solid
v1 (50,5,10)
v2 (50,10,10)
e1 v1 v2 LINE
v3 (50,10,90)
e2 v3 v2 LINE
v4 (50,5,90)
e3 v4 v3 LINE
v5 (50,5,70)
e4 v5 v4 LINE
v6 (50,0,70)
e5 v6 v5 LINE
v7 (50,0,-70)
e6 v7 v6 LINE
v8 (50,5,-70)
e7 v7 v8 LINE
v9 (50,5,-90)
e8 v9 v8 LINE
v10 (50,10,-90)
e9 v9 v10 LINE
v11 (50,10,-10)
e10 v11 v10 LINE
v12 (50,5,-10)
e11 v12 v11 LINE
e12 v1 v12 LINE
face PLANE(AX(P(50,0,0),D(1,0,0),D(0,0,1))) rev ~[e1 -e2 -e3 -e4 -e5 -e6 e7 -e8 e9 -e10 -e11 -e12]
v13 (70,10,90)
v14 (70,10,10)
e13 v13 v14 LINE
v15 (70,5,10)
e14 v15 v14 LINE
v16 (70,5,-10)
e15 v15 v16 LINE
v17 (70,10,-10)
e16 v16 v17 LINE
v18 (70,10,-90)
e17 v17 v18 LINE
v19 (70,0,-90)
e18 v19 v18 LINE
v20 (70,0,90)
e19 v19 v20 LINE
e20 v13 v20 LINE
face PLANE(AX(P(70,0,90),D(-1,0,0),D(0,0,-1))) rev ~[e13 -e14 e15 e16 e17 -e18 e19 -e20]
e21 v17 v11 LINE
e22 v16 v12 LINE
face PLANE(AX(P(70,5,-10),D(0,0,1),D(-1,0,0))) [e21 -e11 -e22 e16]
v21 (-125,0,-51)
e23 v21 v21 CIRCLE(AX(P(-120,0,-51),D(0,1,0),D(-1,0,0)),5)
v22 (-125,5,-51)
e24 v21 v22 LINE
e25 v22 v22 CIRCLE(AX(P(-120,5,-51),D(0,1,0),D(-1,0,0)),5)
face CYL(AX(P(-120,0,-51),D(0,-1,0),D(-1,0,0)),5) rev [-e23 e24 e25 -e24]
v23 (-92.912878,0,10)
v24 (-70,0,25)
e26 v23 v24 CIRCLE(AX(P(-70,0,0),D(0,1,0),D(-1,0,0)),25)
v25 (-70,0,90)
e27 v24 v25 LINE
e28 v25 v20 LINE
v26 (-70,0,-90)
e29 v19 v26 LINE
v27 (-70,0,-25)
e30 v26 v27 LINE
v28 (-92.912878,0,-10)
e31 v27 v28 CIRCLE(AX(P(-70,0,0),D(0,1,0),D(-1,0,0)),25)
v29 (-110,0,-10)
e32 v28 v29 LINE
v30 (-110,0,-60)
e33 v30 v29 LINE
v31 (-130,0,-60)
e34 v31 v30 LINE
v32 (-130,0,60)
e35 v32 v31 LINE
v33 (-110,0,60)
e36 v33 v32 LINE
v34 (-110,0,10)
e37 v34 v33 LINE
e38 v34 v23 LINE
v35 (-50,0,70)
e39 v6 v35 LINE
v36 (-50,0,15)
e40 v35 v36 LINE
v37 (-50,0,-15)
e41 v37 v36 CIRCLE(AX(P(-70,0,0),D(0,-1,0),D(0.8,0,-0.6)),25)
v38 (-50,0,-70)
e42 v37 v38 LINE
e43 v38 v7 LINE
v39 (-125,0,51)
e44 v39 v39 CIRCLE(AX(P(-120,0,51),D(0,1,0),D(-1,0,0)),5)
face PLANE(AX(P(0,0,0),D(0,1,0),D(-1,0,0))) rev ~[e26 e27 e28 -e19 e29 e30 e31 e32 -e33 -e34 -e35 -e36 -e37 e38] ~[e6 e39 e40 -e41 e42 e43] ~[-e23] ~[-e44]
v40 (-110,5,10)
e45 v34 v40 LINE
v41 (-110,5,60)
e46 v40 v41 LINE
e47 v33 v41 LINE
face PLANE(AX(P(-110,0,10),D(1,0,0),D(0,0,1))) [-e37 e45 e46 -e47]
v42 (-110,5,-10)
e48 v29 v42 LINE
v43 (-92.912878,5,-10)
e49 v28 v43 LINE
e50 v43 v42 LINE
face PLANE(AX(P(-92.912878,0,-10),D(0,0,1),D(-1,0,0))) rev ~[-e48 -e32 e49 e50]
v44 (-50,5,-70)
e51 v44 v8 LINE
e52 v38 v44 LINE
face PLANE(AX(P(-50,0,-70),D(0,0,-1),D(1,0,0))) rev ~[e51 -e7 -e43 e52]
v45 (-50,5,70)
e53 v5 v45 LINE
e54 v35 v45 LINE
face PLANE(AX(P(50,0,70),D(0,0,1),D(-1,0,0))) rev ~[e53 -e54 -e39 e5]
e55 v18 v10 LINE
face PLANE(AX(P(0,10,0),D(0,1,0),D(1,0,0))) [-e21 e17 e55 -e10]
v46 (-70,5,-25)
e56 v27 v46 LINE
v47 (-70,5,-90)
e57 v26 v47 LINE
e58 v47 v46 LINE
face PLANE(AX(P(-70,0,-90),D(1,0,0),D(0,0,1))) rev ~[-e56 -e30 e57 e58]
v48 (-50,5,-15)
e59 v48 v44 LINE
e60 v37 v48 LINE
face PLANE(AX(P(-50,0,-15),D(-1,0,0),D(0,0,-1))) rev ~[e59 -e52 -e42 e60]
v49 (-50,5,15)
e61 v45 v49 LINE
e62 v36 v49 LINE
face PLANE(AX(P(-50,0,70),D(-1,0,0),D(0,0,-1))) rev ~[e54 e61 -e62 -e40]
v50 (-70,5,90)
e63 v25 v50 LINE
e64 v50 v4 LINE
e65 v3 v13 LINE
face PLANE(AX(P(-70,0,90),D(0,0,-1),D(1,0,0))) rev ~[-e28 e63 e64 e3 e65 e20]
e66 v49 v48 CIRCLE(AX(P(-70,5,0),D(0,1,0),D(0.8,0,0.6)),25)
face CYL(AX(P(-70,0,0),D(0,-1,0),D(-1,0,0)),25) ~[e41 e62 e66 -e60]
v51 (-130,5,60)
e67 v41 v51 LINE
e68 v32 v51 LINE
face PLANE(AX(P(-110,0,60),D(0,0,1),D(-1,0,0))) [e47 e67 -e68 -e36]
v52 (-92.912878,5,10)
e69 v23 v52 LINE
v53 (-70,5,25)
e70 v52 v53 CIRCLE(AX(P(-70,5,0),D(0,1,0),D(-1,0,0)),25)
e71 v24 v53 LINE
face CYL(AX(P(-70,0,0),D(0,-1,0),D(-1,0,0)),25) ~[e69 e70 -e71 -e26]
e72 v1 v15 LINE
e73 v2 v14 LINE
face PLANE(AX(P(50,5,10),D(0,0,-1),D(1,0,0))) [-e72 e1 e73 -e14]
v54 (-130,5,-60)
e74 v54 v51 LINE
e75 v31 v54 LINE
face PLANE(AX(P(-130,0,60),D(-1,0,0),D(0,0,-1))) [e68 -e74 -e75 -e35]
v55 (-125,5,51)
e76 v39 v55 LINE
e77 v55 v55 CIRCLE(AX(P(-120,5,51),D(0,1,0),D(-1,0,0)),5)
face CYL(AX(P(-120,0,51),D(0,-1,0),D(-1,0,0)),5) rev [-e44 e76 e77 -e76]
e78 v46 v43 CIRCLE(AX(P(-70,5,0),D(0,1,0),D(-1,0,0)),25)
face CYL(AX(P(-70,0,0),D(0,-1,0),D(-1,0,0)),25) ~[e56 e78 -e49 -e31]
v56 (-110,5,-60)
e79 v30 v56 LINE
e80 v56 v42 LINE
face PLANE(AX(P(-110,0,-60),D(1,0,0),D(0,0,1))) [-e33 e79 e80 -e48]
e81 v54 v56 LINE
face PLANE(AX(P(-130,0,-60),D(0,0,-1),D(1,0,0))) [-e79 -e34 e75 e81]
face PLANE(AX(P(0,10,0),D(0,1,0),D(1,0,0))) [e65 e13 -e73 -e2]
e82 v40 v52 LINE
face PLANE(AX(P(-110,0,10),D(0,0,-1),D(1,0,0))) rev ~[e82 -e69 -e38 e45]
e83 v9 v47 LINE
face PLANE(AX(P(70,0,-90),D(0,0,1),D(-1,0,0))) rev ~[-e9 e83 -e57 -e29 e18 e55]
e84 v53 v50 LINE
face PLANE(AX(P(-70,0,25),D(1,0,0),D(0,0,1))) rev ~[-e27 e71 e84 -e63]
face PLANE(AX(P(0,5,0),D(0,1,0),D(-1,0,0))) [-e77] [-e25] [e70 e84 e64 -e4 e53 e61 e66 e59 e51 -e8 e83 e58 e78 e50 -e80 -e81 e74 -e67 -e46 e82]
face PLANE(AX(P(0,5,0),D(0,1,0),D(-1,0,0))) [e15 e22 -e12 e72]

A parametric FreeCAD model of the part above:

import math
import FreeCAD as App
import Part
import Sketcher
from FreeCAD import Vector

doc = App.newDocument("Part")
body = doc.addObject("PartDesign::Body", "Body")

sketch1 = doc.addObject("Sketcher::SketchObject", "Sketch")
body.addObject(sketch1)
sketch1.AttachmentSupport = (doc.XZ_Plane, [""])
sketch1.MapMode = "FlatFace"
sketch1.addGeometry([
    Part.LineSegment(Vector(70, 90, 0), Vector(70, -90, 0)),
    Part.LineSegment(Vector(70, -90, 0), Vector(-70, -90, 0)),
    Part.LineSegment(Vector(-70, -90, 0), Vector(-70, -25, 0)),
    Part.ArcOfCircle(Part.Circle(Vector(-70, 0, 0), Vector(0, 0, 1), 25), math.radians(-156), math.radians(-90)),
    Part.LineSegment(Vector(-93, -10, 0), Vector(-110, -10, 0)),
    Part.LineSegment(Vector(-110, -10, 0), Vector(-110, -60, 0)),
    Part.LineSegment(Vector(-110, -60, 0), Vector(-130, -60, 0)),
    Part.LineSegment(Vector(-130, -60, 0), Vector(-130, 60, 0)),
    Part.LineSegment(Vector(-130, 60, 0), Vector(-110, 60, 0)),
    Part.LineSegment(Vector(-110, 60, 0), Vector(-110, 10, 0)),
    Part.LineSegment(Vector(-110, 10, 0), Vector(-93, 10, 0)),
    Part.ArcOfCircle(Part.Circle(Vector(-70, 0, 0), Vector(0, 0, 1), 25), math.radians(90), math.radians(156)),
    Part.LineSegment(Vector(-70, 25, 0), Vector(-70, 90, 0)),
    Part.LineSegment(Vector(-70, 90, 0), Vector(70, 90, 0)),
    Part.LineSegment(Vector(50, 70, 0), Vector(-50, 70, 0)),
    Part.LineSegment(Vector(-50, 70, 0), Vector(-50, 15, 0)),
    Part.ArcOfCircle(Part.Circle(Vector(-70, 0, 0), Vector(0, 0, 1), 25), math.radians(-37), math.radians(37)),
    Part.LineSegment(Vector(-50, -15, 0), Vector(-50, -70, 0)),
    Part.LineSegment(Vector(-50, -70, 0), Vector(50, -70, 0)),
    Part.LineSegment(Vector(50, -70, 0), Vector(50, 70, 0)),
    Part.Circle(Vector(-120, 51, 0), Vector(0, 0, 1), 5),
    Part.Circle(Vector(-120, -51, 0), Vector(0, 0, 1), 5),
], False)
sketch1.addConstraint([
    Sketcher.Constraint("Coincident", 0, 2, 1, 1),
    Sketcher.Constraint("Coincident", 1, 2, 2, 1),
    Sketcher.Constraint("Coincident", 2, 2, 3, 2),
    Sketcher.Constraint("Coincident", 3, 1, 4, 1),
    Sketcher.Constraint("Coincident", 4, 2, 5, 1),
    Sketcher.Constraint("Coincident", 5, 2, 6, 1),
    Sketcher.Constraint("Coincident", 6, 2, 7, 1),
    Sketcher.Constraint("Coincident", 7, 2, 8, 1),
    Sketcher.Constraint("Coincident", 8, 2, 9, 1),
    Sketcher.Constraint("Coincident", 9, 2, 10, 1),
    Sketcher.Constraint("Coincident", 10, 2, 11, 2),
    Sketcher.Constraint("Coincident", 11, 1, 12, 1),
    Sketcher.Constraint("Coincident", 12, 2, 13, 1),
    Sketcher.Constraint("Coincident", 13, 2, 0, 1),
    Sketcher.Constraint("Coincident", 14, 2, 15, 1),
    Sketcher.Constraint("Coincident", 15, 2, 16, 2),
    Sketcher.Constraint("Coincident", 16, 1, 17, 1),
    Sketcher.Constraint("Coincident", 17, 2, 18, 1),
    Sketcher.Constraint("Coincident", 18, 2, 19, 1),
    Sketcher.Constraint("Coincident", 19, 2, 14, 1),
    Sketcher.Constraint("Vertical", 0),
    Sketcher.Constraint("Horizontal", 1),
    Sketcher.Constraint("Vertical", 2),
    Sketcher.Constraint("Horizontal", 4),
    Sketcher.Constraint("Vertical", 5),
    Sketcher.Constraint("Horizontal", 6),
    Sketcher.Constraint("Vertical", 7),
    Sketcher.Constraint("Horizontal", 8),
    Sketcher.Constraint("Vertical", 9),
    Sketcher.Constraint("Horizontal", 10),
    Sketcher.Constraint("Vertical", 12),
    Sketcher.Constraint("Horizontal", 13),
    Sketcher.Constraint("Horizontal", 14),
    Sketcher.Constraint("Vertical", 15),
    Sketcher.Constraint("Vertical", 17),
    Sketcher.Constraint("Horizontal", 18),
    Sketcher.Constraint("Vertical", 19),
    Sketcher.Constraint("Coincident", 11, 3, 3, 3),
    Sketcher.Constraint("Coincident", 16, 3, 3, 3),
    Sketcher.Constraint("Equal", 3, 11),
    Sketcher.Constraint("Equal", 11, 16),
    Sketcher.Constraint("Equal", 20, 21),
    Sketcher.Constraint("Symmetric", 0, 2, 12, 2, -1, 1),
    Sketcher.Constraint("Symmetric", 14, 2, 18, 2, -1, 1),
    Sketcher.Constraint("Symmetric", 20, 3, 21, 3, -1),
    Sketcher.Constraint("Symmetric", 5, 2, 8, 2, -1),
    Sketcher.Constraint("Symmetric", 3, 1, 10, 2, -1),
    Sketcher.Constraint("Vertical", 16, 3, 1, 2),
    Sketcher.Constraint("Vertical", 2, 2, 11, 1),
    Sketcher.Constraint("Vertical", 15, 2, 16, 1),
    Sketcher.Constraint("Equal", 13, 19),
    Sketcher.Constraint("Diameter", 20, 10.0),
    Sketcher.Constraint("Radius", 3, 25.0),
    Sketcher.Constraint("DistanceX", 1, 2, 1, 1, 140.0),
    Sketcher.Constraint("DistanceX", 6, 2, 6, 1, 20.0),
    Sketcher.Constraint("DistanceY", 0, 2, 0, 1, 180.0),
    Sketcher.Constraint("DistanceY", 5, 2, 5, 1, 50.0),
    Sketcher.Constraint("DistanceY", 7, 1, 7, 2, 120.0),
    Sketcher.Constraint("DistanceX", 20, 3, -1, 1, 120.0),
    Sketcher.Constraint("DistanceX", 14, 2, -1, 1, 50.0),
    Sketcher.Constraint("DistanceX", 21, 3, 4, 2, 10.0),
    Sketcher.Constraint("DistanceY", 5, 2, 21, 3, 9.0),
])
pad1 = doc.addObject("PartDesign::Pad", "Pad")
body.addObject(pad1)
pad1.Profile = sketch1
pad1.Length = 5
pad1.Reversed = True

sketch2 = doc.addObject("Sketcher::SketchObject", "Sketch001")
body.addObject(sketch2)
sketch2.AttachmentSupport = (doc.XZ_Plane, [""])
sketch2.MapMode = "FlatFace"
sketch2.AttachmentOffset = App.Placement(Vector(0, 0, -5), App.Rotation())
sketch2.addGeometry([
    Part.LineSegment(Vector(50, 10, 0), Vector(50, 90, 0)),
    Part.LineSegment(Vector(50, 90, 0), Vector(70, 90, 0)),
    Part.LineSegment(Vector(70, 90, 0), Vector(70, 10, 0)),
    Part.LineSegment(Vector(70, 10, 0), Vector(50, 10, 0)),
    Part.LineSegment(Vector(50, -10, 0), Vector(70, -10, 0)),
    Part.LineSegment(Vector(70, -10, 0), Vector(70, -90, 0)),
    Part.LineSegment(Vector(70, -90, 0), Vector(50, -90, 0)),
    Part.LineSegment(Vector(50, -90, 0), Vector(50, -10, 0)),
], False)
sketch2.addConstraint([
    Sketcher.Constraint("Coincident", 0, 2, 1, 1),
    Sketcher.Constraint("Coincident", 1, 2, 2, 1),
    Sketcher.Constraint("Coincident", 2, 2, 3, 1),
    Sketcher.Constraint("Coincident", 3, 2, 0, 1),
    Sketcher.Constraint("Coincident", 4, 2, 5, 1),
    Sketcher.Constraint("Coincident", 5, 2, 6, 1),
    Sketcher.Constraint("Coincident", 6, 2, 7, 1),
    Sketcher.Constraint("Coincident", 7, 2, 4, 1),
    Sketcher.Constraint("Vertical", 0),
    Sketcher.Constraint("Horizontal", 1),
    Sketcher.Constraint("Vertical", 2),
    Sketcher.Constraint("Horizontal", 3),
    Sketcher.Constraint("Horizontal", 4),
    Sketcher.Constraint("Vertical", 5),
    Sketcher.Constraint("Horizontal", 6),
    Sketcher.Constraint("Vertical", 7),
    Sketcher.Constraint("Symmetric", 2, 2, 4, 2, -1),
    Sketcher.Constraint("Symmetric", 0, 2, 6, 2, -1),
    Sketcher.Constraint("DistanceX", 1, 1, 1, 2, 20.0),
    Sketcher.Constraint("DistanceY", -1, 1, 2, 2, 10.0),
    Sketcher.Constraint("DistanceY", 0, 1, 0, 2, 80.0),
    Sketcher.Constraint("DistanceX", -1, 1, 0, 2, 50.0),
])
pad2 = doc.addObject("PartDesign::Pad", "Pad001")
body.addObject(pad2)
pad2.Profile = sketch2
pad2.Length = 5
pad2.Reversed = True

doc.recompute()
